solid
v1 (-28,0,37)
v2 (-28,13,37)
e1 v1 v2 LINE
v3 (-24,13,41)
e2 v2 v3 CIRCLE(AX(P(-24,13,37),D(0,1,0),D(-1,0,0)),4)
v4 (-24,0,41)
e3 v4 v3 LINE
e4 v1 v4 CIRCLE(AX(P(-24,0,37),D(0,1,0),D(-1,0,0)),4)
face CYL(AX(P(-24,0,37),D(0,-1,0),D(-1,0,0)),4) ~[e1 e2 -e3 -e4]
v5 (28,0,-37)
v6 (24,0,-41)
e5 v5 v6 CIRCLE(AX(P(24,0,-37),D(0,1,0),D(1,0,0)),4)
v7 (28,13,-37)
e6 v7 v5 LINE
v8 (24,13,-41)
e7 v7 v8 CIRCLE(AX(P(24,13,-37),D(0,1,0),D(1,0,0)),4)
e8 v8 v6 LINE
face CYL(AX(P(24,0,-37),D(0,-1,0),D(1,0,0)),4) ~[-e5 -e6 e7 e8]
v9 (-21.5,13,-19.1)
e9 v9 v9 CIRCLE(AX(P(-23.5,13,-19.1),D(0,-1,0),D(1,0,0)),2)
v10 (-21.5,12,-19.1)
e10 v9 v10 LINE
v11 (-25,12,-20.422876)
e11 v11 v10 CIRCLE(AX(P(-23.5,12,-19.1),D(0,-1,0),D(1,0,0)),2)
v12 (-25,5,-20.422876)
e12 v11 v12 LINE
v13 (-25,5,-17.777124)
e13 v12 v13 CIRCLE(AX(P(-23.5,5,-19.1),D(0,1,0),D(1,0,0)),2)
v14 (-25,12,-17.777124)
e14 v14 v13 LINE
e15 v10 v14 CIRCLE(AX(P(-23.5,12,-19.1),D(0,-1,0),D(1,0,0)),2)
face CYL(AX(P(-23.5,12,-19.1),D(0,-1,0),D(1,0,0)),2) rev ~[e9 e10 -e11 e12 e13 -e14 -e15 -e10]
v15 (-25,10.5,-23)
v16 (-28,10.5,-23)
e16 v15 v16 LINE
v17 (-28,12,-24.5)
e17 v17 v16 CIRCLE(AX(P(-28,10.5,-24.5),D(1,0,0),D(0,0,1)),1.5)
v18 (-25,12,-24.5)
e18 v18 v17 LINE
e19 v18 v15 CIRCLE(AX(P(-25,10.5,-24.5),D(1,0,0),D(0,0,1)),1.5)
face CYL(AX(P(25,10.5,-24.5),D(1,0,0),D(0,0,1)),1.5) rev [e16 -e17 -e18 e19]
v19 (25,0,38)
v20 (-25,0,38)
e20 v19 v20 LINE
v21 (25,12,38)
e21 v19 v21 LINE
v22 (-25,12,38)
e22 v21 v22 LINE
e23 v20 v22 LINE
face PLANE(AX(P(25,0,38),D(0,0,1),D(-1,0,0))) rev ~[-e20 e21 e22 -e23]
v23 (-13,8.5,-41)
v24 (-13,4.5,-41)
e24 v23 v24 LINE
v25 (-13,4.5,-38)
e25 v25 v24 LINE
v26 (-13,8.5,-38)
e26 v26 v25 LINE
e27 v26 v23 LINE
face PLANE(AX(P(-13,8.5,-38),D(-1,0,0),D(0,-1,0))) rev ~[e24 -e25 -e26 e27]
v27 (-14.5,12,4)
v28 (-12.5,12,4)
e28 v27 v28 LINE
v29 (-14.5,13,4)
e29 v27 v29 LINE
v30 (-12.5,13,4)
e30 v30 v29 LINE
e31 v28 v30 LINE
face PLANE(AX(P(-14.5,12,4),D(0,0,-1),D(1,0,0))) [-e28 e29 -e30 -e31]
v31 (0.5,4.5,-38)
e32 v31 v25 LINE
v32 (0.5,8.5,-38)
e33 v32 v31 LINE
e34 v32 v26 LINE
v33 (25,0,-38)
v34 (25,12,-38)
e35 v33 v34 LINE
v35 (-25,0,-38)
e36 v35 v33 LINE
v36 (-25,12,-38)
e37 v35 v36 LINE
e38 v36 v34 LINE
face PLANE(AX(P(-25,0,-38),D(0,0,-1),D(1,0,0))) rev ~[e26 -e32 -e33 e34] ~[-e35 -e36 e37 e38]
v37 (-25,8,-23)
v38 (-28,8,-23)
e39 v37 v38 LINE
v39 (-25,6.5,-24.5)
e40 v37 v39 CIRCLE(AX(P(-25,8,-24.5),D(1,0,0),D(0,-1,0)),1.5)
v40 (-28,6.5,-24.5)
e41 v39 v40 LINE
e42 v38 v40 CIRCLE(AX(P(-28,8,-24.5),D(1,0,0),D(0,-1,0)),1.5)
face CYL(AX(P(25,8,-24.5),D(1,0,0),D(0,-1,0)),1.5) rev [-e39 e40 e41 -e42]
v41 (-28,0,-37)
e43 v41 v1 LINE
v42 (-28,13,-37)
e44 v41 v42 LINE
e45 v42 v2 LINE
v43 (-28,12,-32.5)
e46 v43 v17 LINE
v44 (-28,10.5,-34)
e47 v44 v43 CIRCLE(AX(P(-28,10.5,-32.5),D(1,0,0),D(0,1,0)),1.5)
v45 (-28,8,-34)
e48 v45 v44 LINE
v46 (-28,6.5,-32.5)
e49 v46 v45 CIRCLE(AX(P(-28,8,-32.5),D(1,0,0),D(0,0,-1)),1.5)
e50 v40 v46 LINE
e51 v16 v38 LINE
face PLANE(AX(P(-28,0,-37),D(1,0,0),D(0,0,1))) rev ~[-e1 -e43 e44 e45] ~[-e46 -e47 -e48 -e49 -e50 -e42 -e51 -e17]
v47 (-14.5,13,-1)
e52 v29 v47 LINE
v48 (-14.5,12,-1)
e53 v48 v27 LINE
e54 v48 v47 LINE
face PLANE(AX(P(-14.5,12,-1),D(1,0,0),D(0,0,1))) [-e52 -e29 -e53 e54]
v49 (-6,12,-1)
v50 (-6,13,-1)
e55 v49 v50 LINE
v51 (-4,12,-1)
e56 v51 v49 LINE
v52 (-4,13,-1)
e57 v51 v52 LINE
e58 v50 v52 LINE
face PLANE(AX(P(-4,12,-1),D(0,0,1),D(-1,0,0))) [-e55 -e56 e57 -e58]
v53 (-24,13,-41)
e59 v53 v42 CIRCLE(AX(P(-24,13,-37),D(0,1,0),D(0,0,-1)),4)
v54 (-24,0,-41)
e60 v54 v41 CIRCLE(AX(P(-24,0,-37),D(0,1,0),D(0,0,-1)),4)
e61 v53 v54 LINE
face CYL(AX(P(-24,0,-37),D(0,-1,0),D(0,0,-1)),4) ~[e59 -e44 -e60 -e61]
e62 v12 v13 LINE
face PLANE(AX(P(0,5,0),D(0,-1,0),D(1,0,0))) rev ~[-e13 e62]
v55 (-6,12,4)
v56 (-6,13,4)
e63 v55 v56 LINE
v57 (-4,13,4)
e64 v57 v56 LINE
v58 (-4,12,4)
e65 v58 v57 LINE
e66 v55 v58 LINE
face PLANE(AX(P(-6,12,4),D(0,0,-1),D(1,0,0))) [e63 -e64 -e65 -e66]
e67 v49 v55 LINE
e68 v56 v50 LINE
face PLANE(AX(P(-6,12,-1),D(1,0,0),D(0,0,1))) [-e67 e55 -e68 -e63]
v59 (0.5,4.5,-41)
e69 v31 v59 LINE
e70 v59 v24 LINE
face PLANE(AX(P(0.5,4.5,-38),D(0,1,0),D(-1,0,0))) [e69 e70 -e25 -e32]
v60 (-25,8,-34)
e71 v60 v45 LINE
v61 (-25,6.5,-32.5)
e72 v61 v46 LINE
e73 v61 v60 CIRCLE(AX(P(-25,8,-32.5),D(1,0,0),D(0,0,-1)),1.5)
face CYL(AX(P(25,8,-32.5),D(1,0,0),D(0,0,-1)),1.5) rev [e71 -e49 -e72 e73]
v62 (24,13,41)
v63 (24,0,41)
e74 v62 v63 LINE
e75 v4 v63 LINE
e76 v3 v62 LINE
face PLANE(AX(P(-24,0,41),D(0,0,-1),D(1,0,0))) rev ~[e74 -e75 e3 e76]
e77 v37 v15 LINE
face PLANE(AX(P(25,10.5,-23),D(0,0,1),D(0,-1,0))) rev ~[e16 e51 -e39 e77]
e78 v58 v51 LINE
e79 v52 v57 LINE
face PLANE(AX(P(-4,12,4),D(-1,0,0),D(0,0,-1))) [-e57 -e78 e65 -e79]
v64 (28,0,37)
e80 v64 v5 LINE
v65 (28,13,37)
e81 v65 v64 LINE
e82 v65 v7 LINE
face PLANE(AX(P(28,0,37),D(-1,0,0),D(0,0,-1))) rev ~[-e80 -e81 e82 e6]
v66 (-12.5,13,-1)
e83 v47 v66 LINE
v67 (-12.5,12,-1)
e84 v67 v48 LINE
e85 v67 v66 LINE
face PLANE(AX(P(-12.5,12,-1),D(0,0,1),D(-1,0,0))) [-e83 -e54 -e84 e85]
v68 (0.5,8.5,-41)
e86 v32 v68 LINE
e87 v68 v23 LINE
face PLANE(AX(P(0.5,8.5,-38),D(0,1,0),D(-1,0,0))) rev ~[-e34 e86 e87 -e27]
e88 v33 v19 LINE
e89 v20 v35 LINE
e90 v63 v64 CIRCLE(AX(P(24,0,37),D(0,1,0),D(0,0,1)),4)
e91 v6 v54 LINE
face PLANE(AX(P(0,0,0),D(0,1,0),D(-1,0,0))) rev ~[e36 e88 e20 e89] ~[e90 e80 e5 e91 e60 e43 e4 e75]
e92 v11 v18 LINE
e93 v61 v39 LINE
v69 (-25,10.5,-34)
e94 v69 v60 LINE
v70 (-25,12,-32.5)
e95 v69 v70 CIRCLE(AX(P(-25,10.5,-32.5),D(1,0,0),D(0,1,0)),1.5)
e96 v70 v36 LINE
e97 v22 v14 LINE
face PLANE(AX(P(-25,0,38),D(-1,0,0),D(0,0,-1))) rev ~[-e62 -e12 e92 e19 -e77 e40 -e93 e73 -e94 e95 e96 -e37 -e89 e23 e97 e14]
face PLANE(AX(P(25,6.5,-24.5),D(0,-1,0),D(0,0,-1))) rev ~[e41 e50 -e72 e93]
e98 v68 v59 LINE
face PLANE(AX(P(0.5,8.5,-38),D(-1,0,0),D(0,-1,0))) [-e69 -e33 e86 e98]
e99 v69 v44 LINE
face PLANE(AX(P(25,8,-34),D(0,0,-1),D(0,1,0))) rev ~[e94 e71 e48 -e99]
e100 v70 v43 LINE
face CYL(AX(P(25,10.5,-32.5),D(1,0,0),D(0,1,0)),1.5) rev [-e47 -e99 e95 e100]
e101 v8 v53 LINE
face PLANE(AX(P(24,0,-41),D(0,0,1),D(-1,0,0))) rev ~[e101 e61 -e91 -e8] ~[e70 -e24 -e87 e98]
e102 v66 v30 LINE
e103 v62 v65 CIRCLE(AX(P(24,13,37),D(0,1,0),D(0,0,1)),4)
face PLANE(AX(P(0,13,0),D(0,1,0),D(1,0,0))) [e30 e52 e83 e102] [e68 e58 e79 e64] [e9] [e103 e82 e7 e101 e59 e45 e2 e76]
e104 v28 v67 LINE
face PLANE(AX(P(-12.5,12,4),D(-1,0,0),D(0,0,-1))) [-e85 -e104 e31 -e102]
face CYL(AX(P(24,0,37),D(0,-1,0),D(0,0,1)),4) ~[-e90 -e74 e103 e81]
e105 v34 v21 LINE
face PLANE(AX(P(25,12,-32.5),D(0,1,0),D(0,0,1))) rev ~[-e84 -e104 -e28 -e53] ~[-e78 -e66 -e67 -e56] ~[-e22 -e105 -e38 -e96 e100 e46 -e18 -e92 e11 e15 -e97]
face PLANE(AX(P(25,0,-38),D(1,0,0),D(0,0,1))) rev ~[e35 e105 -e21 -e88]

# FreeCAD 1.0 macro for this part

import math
import FreeCAD as App
import Part
import Sketcher
from FreeCAD import Vector
Q = App.Units.Quantity


def add_polygon(sketch, points):
    """Adds a closed chain of lines whose ends are joined by coincident constraints."""
    first, n = sketch.GeometryCount, len(points)
    for a, b in zip(points, points[1:] + points[:1]):
        sketch.addGeometry(Part.LineSegment(App.Vector(*a, 0), App.Vector(*b, 0)), False)
    for i in range(n):
        sketch.addConstraint(Sketcher.Constraint("Coincident", first + i, 2, first + (i + 1) % n, 1))

doc = App.newDocument("Part")
params = doc.addObject("Spreadsheet::Sheet", "Params")
for row, (alias, value) in enumerate([
    ("sketch1_radius", "4 mm"),
    ("sketch1_width", "50 mm"),
    ("sketch1_height", "76 mm"),
    ("pad1_length", "12 mm"),
    ("sketch2_radius", "4 mm"),
    ("sketch2_width", "48 mm"),
    ("sketch2_height", "74 mm"),
    ("pad2_length", "1 mm"),
    ("sketch3_radius", "1.5 mm"),
    ("sketch3_height", "8 mm"),
    ("sketch4_width", "13.5 mm"),
    ("sketch4_height", "4 mm"),
    ("pocket2_length", "10 mm"),
    ("sketch5_diameter", "4 mm"),
    ("pocket3_length", "14 mm"),
    ("sketch6_width", "2 mm"),
    ("sketch6_height", "5 mm"),
    ("pocket4_length", "14 mm"),
], start=1):
    params.set(f"A{row}", alias)
    params.set(f"B{row}", "=" + value)
    params.setAlias(f"B{row}", alias)

body = doc.addObject("PartDesign::Body", "Body")

sketch1 = body.newObject("Sketcher::SketchObject", "Sketch")
sketch1.AttachmentSupport = (doc.getObject("XZ_Plane"), [""])
sketch1.MapMode = "FlatFace"
sketch1.addGeometry(Part.ArcOfCircle(Part.Circle(Vector(-24, -37, 0), Vector(0, 0, 1), 4), math.radians(180), math.radians(270)), False)
sketch1.addGeometry(Part.LineSegment(Vector(-28, -37, 0), Vector(-28, 37, 0)), False)
sketch1.addGeometry(Part.ArcOfCircle(Part.Circle(Vector(-24, 37, 0), Vector(0, 0, 1), 4), math.radians(90), math.radians(180)), False)
sketch1.addGeometry(Part.LineSegment(Vector(-24, 41, 0), Vector(24, 41, 0)), False)
sketch1.addGeometry(Part.ArcOfCircle(Part.Circle(Vector(24, 37, 0), Vector(0, 0, 1), 4), math.radians(0), math.radians(90)), False)
sketch1.addGeometry(Part.LineSegment(Vector(28, 37, 0), Vector(28, -37, 0)), False)
sketch1.addGeometry(Part.ArcOfCircle(Part.Circle(Vector(24, -37, 0), Vector(0, 0, 1), 4), math.radians(-90), math.radians(0)), False)
sketch1.addGeometry(Part.LineSegment(Vector(24, -41, 0), Vector(-24, -41, 0)), False)
add_polygon(sketch1, [(25, -38), (25, 38), (-25, 38), (-25, -38)])
sketch1.addConstraint([
    Sketcher.Constraint("Tangent", 0, 1, 1, 1),
    Sketcher.Constraint("Tangent", 1, 2, 2, 2),
    Sketcher.Constraint("Tangent", 2, 1, 3, 1),
    Sketcher.Constraint("Tangent", 3, 2, 4, 2),
    Sketcher.Constraint("Tangent", 4, 1, 5, 1),
    Sketcher.Constraint("Tangent", 5, 2, 6, 2),
    Sketcher.Constraint("Tangent", 6, 1, 7, 1),
    Sketcher.Constraint("Tangent", 7, 2, 0, 2),
    Sketcher.Constraint("Vertical", 1),
    Sketcher.Constraint("Horizontal", 3),
    Sketcher.Constraint("Vertical", 5),
    Sketcher.Constraint("Horizontal", 7),
    Sketcher.Constraint("Vertical", 8),
    Sketcher.Constraint("Horizontal", 9),
    Sketcher.Constraint("Vertical", 10),
    Sketcher.Constraint("Horizontal", 11),
    Sketcher.Constraint("Equal", 0, 2),
    Sketcher.Constraint("Equal", 2, 4),
    Sketcher.Constraint("Equal", 4, 6),
    Sketcher.Constraint("Symmetric", 0, 3, 4, 3, -1, 1),
    Sketcher.Constraint("Symmetric", 8, 2, 10, 2, -1, 1),
    Sketcher.Constraint("Radius", 0, Q("4 mm")),
    Sketcher.Constraint("DistanceX", 9, 2, 9, 1, Q("50 mm")),
    Sketcher.Constraint("DistanceY", 8, 1, 8, 2, Q("76 mm")),
    Sketcher.Constraint("DistanceY", 8, 2, 3, 2, Q("3 mm")),
    Sketcher.Constraint("DistanceX", 8, 2, 4, 1, Q("3 mm")),
])
sketch1.setExpression("Constraints[25]", "Params.sketch1_radius")
sketch1.setExpression("Constraints[26]", "Params.sketch1_width")
sketch1.setExpression("Constraints[27]", "Params.sketch1_height")
pad1 = body.newObject("PartDesign::Pad", "Pad")
pad1.Profile = sketch1
pad1.setExpression("Length", "Params.pad1_length")
pad1.Reversed = True

sketch2 = body.newObject("Sketcher::SketchObject", "Sketch001")
sketch2.AttachmentSupport = (doc.getObject("XZ_Plane"), [""])
sketch2.MapMode = "FlatFace"
sketch2.AttachmentOffset = App.Placement(Vector(0, 0, -12), App.Rotation())
sketch2.addGeometry([
    Part.LineSegment(Vector(-28, -37, 0), Vector(-28, 37, 0)),
    Part.ArcOfCircle(Part.Circle(Vector(-24, 37, 0), Vector(0, 0, 1), 4), math.radians(90), math.radians(180)),
    Part.LineSegment(Vector(-24, 41, 0), Vector(24, 41, 0)),
    Part.ArcOfCircle(Part.Circle(Vector(24, 37, 0), Vector(0, 0, 1), 4), math.radians(0), math.radians(90)),
    Part.LineSegment(Vector(28, 37, 0), Vector(28, -37, 0)),
    Part.ArcOfCircle(Part.Circle(Vector(24, -37, 0), Vector(0, 0, 1), 4), math.radians(-90), math.radians(0)),
    Part.LineSegment(Vector(24, -41, 0), Vector(-24, -41, 0)),
    Part.ArcOfCircle(Part.Circle(Vector(-24, -37, 0), Vector(0, 0, 1), 4), math.radians(180), math.radians(270)),
], False)
sketch2.addConstraint([
    Sketcher.Constraint("Tangent", 0, 2, 1, 2),
    Sketcher.Constraint("Tangent", 1, 1, 2, 1),
    Sketcher.Constraint("Tangent", 2, 2, 3, 2),
    Sketcher.Constraint("Tangent", 3, 1, 4, 1),
    Sketcher.Constraint("Tangent", 4, 2, 5, 2),
    Sketcher.Constraint("Tangent", 5, 1, 6, 1),
    Sketcher.Constraint("Tangent", 6, 2, 7, 2),
    Sketcher.Constraint("Tangent", 7, 1, 0, 1),
    Sketcher.Constraint("Vertical", 0),
    Sketcher.Constraint("Horizontal", 2),
    Sketcher.Constraint("Vertical", 4),
    Sketcher.Constraint("Horizontal", 6),
    Sketcher.Constraint("Equal", 1, 3),
    Sketcher.Constraint("Equal", 3, 5),
    Sketcher.Constraint("Equal", 5, 7),
    Sketcher.Constraint("Symmetric", 1, 3, 5, 3, -1, 1),
    Sketcher.Constraint("Radius", 1, Q("4 mm")),
    Sketcher.Constraint("DistanceX", 2, 1, 2, 2, Q("48 mm")),
    Sketcher.Constraint("DistanceY", 0, 1, 0, 2, Q("74 mm")),
])
sketch2.setExpression("Constraints[16]", "Params.sketch2_radius")
sketch2.setExpression("Constraints[17]", "Params.sketch2_width")
sketch2.setExpression("Constraints[18]", "Params.sketch2_height")
pad2 = body.newObject("PartDesign::Pad", "Pad001")
pad2.Profile = sketch2
pad2.setExpression("Length", "Params.pad2_length")
pad2.Reversed = True

sketch3 = body.newObject("Sketcher::SketchObject", "Sketch002")
sketch3.AttachmentSupport = (doc.getObject("YZ_Plane"), [""])
sketch3.MapMode = "FlatFace"
sketch3.AttachmentOffset = App.Placement(Vector(0, 0, 25), App.Rotation())
sketch3.addGeometry([
    Part.LineSegment(Vector(12, -24.5, 0), Vector(12, -32.5, 0)),
    Part.ArcOfCircle(Part.Circle(Vector(10.5, -32.5, 0), Vector(0, 0, 1), 1.5), math.radians(-90), math.radians(0)),
    Part.LineSegment(Vector(10.5, -34, 0), Vector(8, -34, 0)),
    Part.ArcOfCircle(Part.Circle(Vector(8, -32.5, 0), Vector(0, 0, 1), 1.5), math.radians(180), math.radians(270)),
    Part.LineSegment(Vector(6.5, -32.5, 0), Vector(6.5, -24.5, 0)),
    Part.ArcOfCircle(Part.Circle(Vector(8, -24.5, 0), Vector(0, 0, 1), 1.5), math.radians(90), math.radians(180)),
    Part.LineSegment(Vector(8, -23, 0), Vector(10.5, -23, 0)),
    Part.ArcOfCircle(Part.Circle(Vector(10.5, -24.5, 0), Vector(0, 0, 1), 1.5), math.radians(0), math.radians(90)),
], False)
sketch3.addConstraint([
    Sketcher.Constraint("Tangent", 0, 2, 1, 2),
    Sketcher.Constraint("Tangent", 1, 1, 2, 1),
    Sketcher.Constraint("Tangent", 2, 2, 3, 2),
    Sketcher.Constraint("Tangent", 3, 1, 4, 1),
    Sketcher.Constraint("Tangent", 4, 2, 5, 2),
    Sketcher.Constraint("Tangent", 5, 1, 6, 1),
    Sketcher.Constraint("Tangent", 6, 2, 7, 2),
    Sketcher.Constraint("Tangent", 7, 1, 0, 1),
    Sketcher.Constraint("Vertical", 0),
    Sketcher.Constraint("Horizontal", 2),
    Sketcher.Constraint("Vertical", 4),
    Sketcher.Constraint("Horizontal", 6),
    Sketcher.Constraint("Equal", 1, 3),
    Sketcher.Constraint("Equal", 3, 5),
    Sketcher.Constraint("Equal", 5, 7),
    Sketcher.Constraint("Radius", 1, Q("1.5 mm")),
    Sketcher.Constraint("DistanceX", 3, 1, 0, 2, Q("5.5 mm")),
    Sketcher.Constraint("DistanceY", 0, 2, 0, 1, Q("8 mm")),
    Sketcher.Constraint("DistanceX", -1, 1, 3, 3, Q("8 mm")),
    Sketcher.Constraint("DistanceY", 1, 1, -1, 1, Q("34 mm")),
])
sketch3.setExpression("Constraints[15]", "Params.sketch3_radius")
sketch3.setExpression("Constraints[17]", "Params.sketch3_height")
pocket1 = body.newObject("PartDesign::Pocket", "Pocket")
pocket1.Profile = sketch3
pocket1.Type = "ThroughAll"

sketch4 = body.newObject("Sketcher::SketchObject", "Sketch003")
sketch4.AttachmentSupport = (doc.getObject("XY_Plane"), [""])
sketch4.MapMode = "FlatFace"
sketch4.AttachmentOffset = App.Placement(Vector(0, 0, -38), App.Rotation())
add_polygon(sketch4, [(0.5, 4.5), (0.5, 8.5), (-13, 8.5), (-13, 4.5)])
sketch4.addConstraint([
    Sketcher.Constraint("Vertical", 0),
    Sketcher.Constraint("Horizontal", 1),
    Sketcher.Constraint("Vertical", 2),
    Sketcher.Constraint("Horizontal", 3),
    Sketcher.Constraint("DistanceX", 1, 2, 1, 1, Q("13.5 mm")),
    Sketcher.Constraint("DistanceY", 0, 1, 0, 2, Q("4 mm")),
    Sketcher.Constraint("DistanceX", 1, 2, -1, 1, Q("13 mm")),
    Sketcher.Constraint("DistanceY", -1, 1, 0, 2, Q("8.5 mm")),
])
sketch4.setExpression("Constraints[8]", "Params.sketch4_width")
sketch4.setExpression("Constraints[9]", "Params.sketch4_height")
pocket2 = body.newObject("PartDesign::Pocket", "Pocket001")
pocket2.Profile = sketch4
pocket2.setExpression("Length", "Params.pocket2_length")

sketch5 = body.newObject("Sketcher::SketchObject", "Sketch004")
sketch5.AttachmentSupport = (doc.getObject("XZ_Plane"), [""])
sketch5.MapMode = "FlatFace"
sketch5.AttachmentOffset = App.Placement(Vector(0, 0, -12), App.Rotation())
sketch5.addGeometry(Part.Circle(Vector(-23.5, -19.1, 0), Vector(0, 0, 1), 2), False)
sketch5.addConstraint([
    Sketcher.Constraint("Diameter", 0, Q("4 mm")),
    Sketcher.Constraint("DistanceX", 0, 3, -1, 1, Q("23.5 mm")),
    Sketcher.Constraint("DistanceY", 0, 3, -1, 1, Q("19.1 mm")),
])
sketch5.setExpression("Constraints[0]", "Params.sketch5_diameter")
pocket3 = body.newObject("PartDesign::Pocket", "Pocket002")
pocket3.Profile = sketch5
pocket3.setExpression("Length", "Params.pocket3_length")
pocket3.Midplane = True

sketch6 = body.newObject("Sketcher::SketchObject", "Sketch005")
sketch6.AttachmentSupport = (doc.getObject("XZ_Plane"), [""])
sketch6.MapMode = "FlatFace"
sketch6.AttachmentOffset = App.Placement(Vector(0, 0, -12), App.Rotation())
add_polygon(sketch6, [(-4, 4), (-6, 4), (-6, -1), (-4, -1)])
add_polygon(sketch6, [(-12.5, 4), (-14.5, 4), (-14.5, -1), (-12.5, -1)])
sketch6.addConstraint([
    Sketcher.Constraint("Horizontal", 0),
    Sketcher.Constraint("Vertical", 1),
    Sketcher.Constraint("Horizontal", 2),
    Sketcher.Constraint("Vertical", 3),
    Sketcher.Constraint("Horizontal", 4),
    Sketcher.Constraint("Vertical", 5),
    Sketcher.Constraint("Horizontal", 6),
    Sketcher.Constraint("Vertical", 7),
    Sketcher.Constraint("Horizontal", 3, 2, 4, 2),
    Sketcher.Constraint("Horizontal", 2, 2, 5, 2),
    Sketcher.Constraint("Equal", 2, 4),
    Sketcher.Constraint("DistanceX", 0, 2, 0, 1, Q("2 mm")),
    Sketcher.Constraint("DistanceY", 1, 2, 1, 1, Q("5 mm")),
    Sketcher.Constraint("DistanceX", 4, 2, 0, 2, Q("8.5 mm")),
    Sketcher.Constraint("DistanceX", 0, 2, -1, 1, Q("6 mm")),
    Sketcher.Constraint("DistanceY", -1, 1, 0, 2, Q("4 mm")),
])
sketch6.setExpression("Constraints[19]", "Params.sketch6_width")
sketch6.setExpression("Constraints[20]", "Params.sketch6_height")
pocket4 = body.newObject("PartDesign::Pocket", "Pocket003")
pocket4.Profile = sketch6
pocket4.setExpression("Length", "Params.pocket4_length")

doc.recompute()
